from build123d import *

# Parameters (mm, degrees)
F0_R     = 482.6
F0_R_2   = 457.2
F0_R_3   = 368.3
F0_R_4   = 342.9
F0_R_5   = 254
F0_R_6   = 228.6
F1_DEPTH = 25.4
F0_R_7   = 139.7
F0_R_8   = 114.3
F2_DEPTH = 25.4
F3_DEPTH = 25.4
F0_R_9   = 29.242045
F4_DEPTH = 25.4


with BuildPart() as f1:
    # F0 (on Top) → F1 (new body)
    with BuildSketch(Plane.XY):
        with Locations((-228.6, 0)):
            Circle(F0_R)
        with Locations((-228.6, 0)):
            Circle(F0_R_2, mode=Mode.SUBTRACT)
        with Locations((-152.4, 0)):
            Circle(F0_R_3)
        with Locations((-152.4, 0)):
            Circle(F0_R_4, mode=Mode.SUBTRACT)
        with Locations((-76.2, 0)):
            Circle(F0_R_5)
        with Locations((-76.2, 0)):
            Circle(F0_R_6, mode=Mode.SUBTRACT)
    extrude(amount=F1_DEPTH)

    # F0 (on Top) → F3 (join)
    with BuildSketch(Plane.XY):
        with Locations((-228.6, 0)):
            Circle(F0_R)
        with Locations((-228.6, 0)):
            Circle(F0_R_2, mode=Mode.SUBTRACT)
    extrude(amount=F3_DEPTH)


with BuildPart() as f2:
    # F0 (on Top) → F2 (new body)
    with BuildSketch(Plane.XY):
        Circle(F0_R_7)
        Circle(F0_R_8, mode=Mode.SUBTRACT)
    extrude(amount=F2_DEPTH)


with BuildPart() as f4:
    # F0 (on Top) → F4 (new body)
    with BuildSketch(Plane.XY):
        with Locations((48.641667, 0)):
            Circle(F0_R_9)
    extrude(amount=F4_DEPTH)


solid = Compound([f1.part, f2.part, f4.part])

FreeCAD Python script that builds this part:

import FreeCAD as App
import Part
import Sketcher
Q = App.Units.Quantity

doc = App.newDocument("Part")
params = doc.addObject("Spreadsheet::Sheet", "Params")
for row, (alias, value) in enumerate([
    ("sketch1_diameter", "38 in"),
    ("sketch1_diameter2", "36 in"),
    ("sketch1_diameter3", "29 in"),
    ("sketch1_diameter4", "27 in"),
    ("sketch1_diameter5", "20 in"),
    ("pad1_length", "1 in"),
    ("sketch2_diameter", "38 in"),
    ("sketch2_diameter2", "36 in"),
    ("pad2_length", "1 in"),
    ("sketch3_diameter", "11 in"),
    ("sketch3_diameter2", "9 in"),
    ("pad3_length", "1 in"),
    ("pad4_length", "1 in"),
], start=1):
    params.set(f"A{row}", alias)
    params.set(f"B{row}", "=" + value)
    params.setAlias(f"B{row}", alias)

body = doc.addObject("PartDesign::Body", "Body")
body.AllowCompound = True

sketch1 = body.newObject("Sketcher::SketchObject", "Sketch")
sketch1.AttachmentSupport = (doc.getObject("XY_Plane"), [""])
sketch1.MapMode = "FlatFace"
sketch1.addGeometry([
    Part.Circle(App.Vector(-229, 0, 0), App.Vector(0, 0, 1), 483),
    Part.Circle(App.Vector(-229, 0, 0), App.Vector(0, 0, 1), 457),
    Part.Circle(App.Vector(-152, 0, 0), App.Vector(0, 0, 1), 368),
    Part.Circle(App.Vector(-152, 0, 0), App.Vector(0, 0, 1), 343),
    Part.Circle(App.Vector(-76, 0, 0), App.Vector(0, 0, 1), 254),
    Part.Circle(App.Vector(-76, 0, 0), App.Vector(0, 0, 1), 229),
], False)
sketch1.addConstraint([
    Sketcher.Constraint("Coincident", 1, 3, 0, 3),
    Sketcher.Constraint("Coincident", 3, 3, 2, 3),
    Sketcher.Constraint("Coincident", 5, 3, 4, 3),
    Sketcher.Constraint("PointOnObject", 0, 3, -1),
    Sketcher.Constraint("PointOnObject", 2, 3, -1),
    Sketcher.Constraint("PointOnObject", 4, 3, -1),
    Sketcher.Constraint("Diameter", 0, Q("38 in")),
    Sketcher.Constraint("Diameter", 1, Q("36 in")),
    Sketcher.Constraint("Diameter", 2, Q("29 in")),
    Sketcher.Constraint("Diameter", 3, Q("27 in")),
    Sketcher.Constraint("Diameter", 4, Q("20 in")),
    Sketcher.Constraint("Diameter", 5, Q("18 in")),
    Sketcher.Constraint("DistanceX", 0, 3, -1, 1, Q("9 in")),
    Sketcher.Constraint("DistanceX", 2, 3, -1, 1, Q("6 in")),
    Sketcher.Constraint("DistanceX", 4, 3, -1, 1, Q("3 in")),
])
sketch1.setExpression("Constraints[6]", "Params.sketch1_diameter")
sketch1.setExpression("Constraints[7]", "Params.sketch1_diameter2")
sketch1.setExpression("Constraints[8]", "Params.sketch1_diameter3")
sketch1.setExpression("Constraints[9]", "Params.sketch1_diameter4")
sketch1.setExpression("Constraints[10]", "Params.sketch1_diameter5")
pad1 = body.newObject("PartDesign::Pad", "Pad")
pad1.Profile = sketch1
pad1.setExpression("Length", "Params.pad1_length")

sketch2 = body.newObject("Sketcher::SketchObject", "Sketch001")
sketch2.AttachmentSupport = (doc.getObject("XY_Plane"), [""])
sketch2.MapMode = "FlatFace"
sketch2.addGeometry([
    Part.Circle(App.Vector(-229, 0, 0), App.Vector(0, 0, 1), 483),
    Part.Circle(App.Vector(-229, 0, 0), App.Vector(0, 0, 1), 457),
], False)
sketch2.addConstraint([
    Sketcher.Constraint("Coincident", 1, 3, 0, 3),
    Sketcher.Constraint("PointOnObject", 0, 3, -1),
    Sketcher.Constraint("Diameter", 0, Q("38 in")),
    Sketcher.Constraint("Diameter", 1, Q("36 in")),
    Sketcher.Constraint("DistanceX", 0, 3, -1, 1, Q("9 in")),
])
sketch2.setExpression("Constraints[2]", "Params.sketch2_diameter")
sketch2.setExpression("Constraints[3]", "Params.sketch2_diameter2")
pad2 = body.newObject("PartDesign::Pad", "Pad001")
pad2.Profile = sketch2
pad2.setExpression("Length", "Params.pad2_length")
body2 = doc.addObject("PartDesign::Body", "Body001")

sketch3 = body2.newObject("Sketcher::SketchObject", "Sketch002")
sketch3.AttachmentSupport = (doc.getObject("XY_Plane001"), [""])
sketch3.MapMode = "FlatFace"
sketch3.addGeometry([
    Part.Circle(App.Vector(0, 0, 0), App.Vector(0, 0, 1), 140),
    Part.Circle(App.Vector(0, 0, 0), App.Vector(0, 0, 1), 114),
], False)
sketch3.addConstraint([
    Sketcher.Constraint("Coincident", 0, 3, -1, 1),
    Sketcher.Constraint("Coincident", 1, 3, -1, 1),
    Sketcher.Constraint("Diameter", 0, Q("11 in")),
    Sketcher.Constraint("Diameter", 1, Q("9 in")),
])
sketch3.setExpression("Constraints[2]", "Params.sketch3_diameter")
sketch3.setExpression("Constraints[3]", "Params.sketch3_diameter2")
pad3 = body2.newObject("PartDesign::Pad", "Pad002")
pad3.Profile = sketch3
pad3.setExpression("Length", "Params.pad3_length")
body3 = doc.addObject("PartDesign::Body", "Body002")

sketch4 = body3.newObject("Sketcher::SketchObject", "Sketch003")
sketch4.AttachmentSupport = (doc.getObject("XY_Plane002"), [""])
sketch4.MapMode = "FlatFace"
sketch4.addGeometry(Part.Circle(App.Vector(49, 0, 0), App.Vector(0, 0, 1), 29), False)
sketch4.addConstraint([
    Sketcher.Constraint("PointOnObject", 0, 3, -1),
    Sketcher.Constraint("Diameter", 0, Q("58.48409 mm")),
    Sketcher.Constraint("DistanceX", -1, 1, 0, 3, Q("48.641667 mm")),
])
pad4 = body3.newObject("PartDesign::Pad", "Pad003")
pad4.Profile = sketch4
pad4.setExpression("Length", "Params.pad4_length")

doc.recompute()
